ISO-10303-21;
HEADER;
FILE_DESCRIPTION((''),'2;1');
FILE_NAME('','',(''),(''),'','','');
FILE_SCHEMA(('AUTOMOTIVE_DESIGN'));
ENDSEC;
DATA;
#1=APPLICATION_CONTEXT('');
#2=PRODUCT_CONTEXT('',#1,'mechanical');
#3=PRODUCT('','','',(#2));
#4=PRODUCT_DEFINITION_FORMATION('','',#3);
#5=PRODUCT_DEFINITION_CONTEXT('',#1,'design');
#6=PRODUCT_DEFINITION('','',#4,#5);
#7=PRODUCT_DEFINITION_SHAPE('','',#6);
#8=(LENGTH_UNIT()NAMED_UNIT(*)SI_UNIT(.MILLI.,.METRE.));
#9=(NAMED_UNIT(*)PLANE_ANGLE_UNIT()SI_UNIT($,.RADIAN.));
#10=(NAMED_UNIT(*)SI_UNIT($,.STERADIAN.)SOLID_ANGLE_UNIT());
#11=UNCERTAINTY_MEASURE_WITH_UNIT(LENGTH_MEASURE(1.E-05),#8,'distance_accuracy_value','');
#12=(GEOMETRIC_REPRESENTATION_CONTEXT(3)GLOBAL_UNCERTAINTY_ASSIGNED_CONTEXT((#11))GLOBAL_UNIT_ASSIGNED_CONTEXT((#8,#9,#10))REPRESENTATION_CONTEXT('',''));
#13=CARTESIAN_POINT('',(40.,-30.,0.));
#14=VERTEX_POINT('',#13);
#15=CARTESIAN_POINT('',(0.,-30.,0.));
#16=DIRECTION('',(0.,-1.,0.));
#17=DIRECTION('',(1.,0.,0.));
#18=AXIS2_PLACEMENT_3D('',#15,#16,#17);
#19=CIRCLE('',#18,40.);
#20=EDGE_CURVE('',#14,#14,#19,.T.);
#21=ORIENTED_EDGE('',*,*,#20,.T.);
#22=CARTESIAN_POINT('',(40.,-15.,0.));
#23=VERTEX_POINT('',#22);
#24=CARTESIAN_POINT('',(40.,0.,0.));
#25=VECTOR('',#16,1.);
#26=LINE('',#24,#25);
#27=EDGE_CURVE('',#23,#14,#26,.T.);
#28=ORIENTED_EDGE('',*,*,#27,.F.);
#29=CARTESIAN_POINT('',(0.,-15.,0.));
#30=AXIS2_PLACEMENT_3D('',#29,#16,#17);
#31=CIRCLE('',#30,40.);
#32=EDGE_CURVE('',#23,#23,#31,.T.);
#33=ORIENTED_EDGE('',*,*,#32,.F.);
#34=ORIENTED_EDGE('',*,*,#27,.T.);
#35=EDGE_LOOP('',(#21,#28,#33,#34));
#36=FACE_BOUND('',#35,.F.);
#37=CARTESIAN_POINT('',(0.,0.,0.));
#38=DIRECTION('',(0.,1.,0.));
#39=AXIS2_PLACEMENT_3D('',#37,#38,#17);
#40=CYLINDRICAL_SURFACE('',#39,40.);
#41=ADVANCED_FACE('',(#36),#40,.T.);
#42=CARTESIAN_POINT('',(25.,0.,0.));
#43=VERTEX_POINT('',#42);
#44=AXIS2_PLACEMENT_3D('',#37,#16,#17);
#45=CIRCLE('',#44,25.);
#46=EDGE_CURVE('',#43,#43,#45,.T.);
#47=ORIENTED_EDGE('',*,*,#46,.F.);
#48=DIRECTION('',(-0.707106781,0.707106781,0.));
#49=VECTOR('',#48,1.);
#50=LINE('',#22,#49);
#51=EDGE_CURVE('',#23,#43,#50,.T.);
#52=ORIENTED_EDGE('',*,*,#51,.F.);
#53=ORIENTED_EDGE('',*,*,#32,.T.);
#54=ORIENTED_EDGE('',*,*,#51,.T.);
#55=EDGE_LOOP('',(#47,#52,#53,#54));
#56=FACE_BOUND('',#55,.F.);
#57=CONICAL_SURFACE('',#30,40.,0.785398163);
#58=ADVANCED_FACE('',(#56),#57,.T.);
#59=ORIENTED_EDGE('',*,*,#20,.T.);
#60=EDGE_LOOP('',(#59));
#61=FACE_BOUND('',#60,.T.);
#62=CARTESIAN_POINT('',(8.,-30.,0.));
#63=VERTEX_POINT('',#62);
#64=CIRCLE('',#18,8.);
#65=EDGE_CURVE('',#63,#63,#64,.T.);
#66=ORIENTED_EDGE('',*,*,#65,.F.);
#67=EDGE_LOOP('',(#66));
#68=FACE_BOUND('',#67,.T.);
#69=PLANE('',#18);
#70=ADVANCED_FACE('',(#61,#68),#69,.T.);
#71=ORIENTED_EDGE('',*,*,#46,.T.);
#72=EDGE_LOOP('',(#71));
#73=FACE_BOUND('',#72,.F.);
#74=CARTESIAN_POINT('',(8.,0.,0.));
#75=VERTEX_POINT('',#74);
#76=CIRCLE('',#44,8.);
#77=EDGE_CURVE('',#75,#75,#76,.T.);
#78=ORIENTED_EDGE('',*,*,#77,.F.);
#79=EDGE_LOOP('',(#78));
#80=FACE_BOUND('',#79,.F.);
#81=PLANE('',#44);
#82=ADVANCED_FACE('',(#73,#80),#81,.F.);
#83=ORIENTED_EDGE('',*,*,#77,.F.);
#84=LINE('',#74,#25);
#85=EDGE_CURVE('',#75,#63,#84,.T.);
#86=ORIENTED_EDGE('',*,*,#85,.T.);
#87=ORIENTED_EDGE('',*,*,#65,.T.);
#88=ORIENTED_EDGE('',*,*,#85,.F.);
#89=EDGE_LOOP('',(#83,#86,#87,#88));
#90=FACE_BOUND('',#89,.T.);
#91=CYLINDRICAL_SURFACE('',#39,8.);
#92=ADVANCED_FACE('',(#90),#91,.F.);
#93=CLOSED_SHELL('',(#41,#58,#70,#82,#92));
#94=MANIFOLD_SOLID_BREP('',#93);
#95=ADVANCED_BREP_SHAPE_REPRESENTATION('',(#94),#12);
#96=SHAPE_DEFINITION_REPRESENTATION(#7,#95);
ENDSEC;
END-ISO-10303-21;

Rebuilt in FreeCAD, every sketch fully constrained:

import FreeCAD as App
import Part
import Sketcher
Q = App.Units.Quantity


def edges_at(feature, points):
    """Names of the edges that pass closest to the given points."""
    edges = feature.Shape.Edges
    near = lambda p: min(range(len(edges)), key=lambda i: edges[i].distToShape(Part.Vertex(*p))[0])
    return sorted({f"Edge{near(p) + 1}" for p in points})

doc = App.newDocument("Part")
body = doc.addObject("PartDesign::Body", "Body")

sketch1 = doc.addObject("Sketcher::SketchObject", "Sketch")
body.addObject(sketch1)
sketch1.AttachmentSupport = (doc.XZ_Plane, [""])
sketch1.MapMode = "FlatFace"
sketch1.addGeometry([
    Part.Circle(App.Vector(0, 0, 0), App.Vector(0, 0, 1), 40),
    Part.Circle(App.Vector(0, 0, 0), App.Vector(0, 0, 1), 25),
], False)
sketch1.addConstraint([
    Sketcher.Constraint("Coincident", 0, 3, -1, 1),
    Sketcher.Constraint("Coincident", 1, 3, -1, 1),
    Sketcher.Constraint("Diameter", 0, Q("80 mm")),
    Sketcher.Constraint("Diameter", 1, Q("50 mm")),
])
pad1 = doc.addObject("PartDesign::Pad", "Pad")
body.addObject(pad1)
pad1.Profile = sketch1
pad1.Length = 30

sketch2 = doc.addObject("Sketcher::SketchObject", "Sketch001")
body.addObject(sketch2)
sketch2.AttachmentSupport = (doc.XZ_Plane, [""])
sketch2.MapMode = "FlatFace"
sketch2.addGeometry([
    Part.Circle(App.Vector(0, 0, 0), App.Vector(0, 0, 1), 40),
    Part.Circle(App.Vector(0, 0, 0), App.Vector(0, 0, 1), 8),
], False)
sketch2.addConstraint([
    Sketcher.Constraint("Coincident", 0, 3, -1, 1),
    Sketcher.Constraint("Coincident", 1, 3, -1, 1),
    Sketcher.Constraint("Diameter", 0, Q("80 mm")),
    Sketcher.Constraint("Diameter", 1, Q("16 mm")),
])
pad2 = doc.addObject("PartDesign::Pad", "Pad001")
body.addObject(pad2)
pad2.Profile = sketch2
pad2.Length = 30
doc.recompute()

chamfer = doc.addObject("PartDesign::Chamfer", "Chamfer")
body.addObject(chamfer)
chamfer.Base = (pad2, edges_at(pad2, [(-40, 0, 0)]))
chamfer.Size = 15

doc.recompute()
